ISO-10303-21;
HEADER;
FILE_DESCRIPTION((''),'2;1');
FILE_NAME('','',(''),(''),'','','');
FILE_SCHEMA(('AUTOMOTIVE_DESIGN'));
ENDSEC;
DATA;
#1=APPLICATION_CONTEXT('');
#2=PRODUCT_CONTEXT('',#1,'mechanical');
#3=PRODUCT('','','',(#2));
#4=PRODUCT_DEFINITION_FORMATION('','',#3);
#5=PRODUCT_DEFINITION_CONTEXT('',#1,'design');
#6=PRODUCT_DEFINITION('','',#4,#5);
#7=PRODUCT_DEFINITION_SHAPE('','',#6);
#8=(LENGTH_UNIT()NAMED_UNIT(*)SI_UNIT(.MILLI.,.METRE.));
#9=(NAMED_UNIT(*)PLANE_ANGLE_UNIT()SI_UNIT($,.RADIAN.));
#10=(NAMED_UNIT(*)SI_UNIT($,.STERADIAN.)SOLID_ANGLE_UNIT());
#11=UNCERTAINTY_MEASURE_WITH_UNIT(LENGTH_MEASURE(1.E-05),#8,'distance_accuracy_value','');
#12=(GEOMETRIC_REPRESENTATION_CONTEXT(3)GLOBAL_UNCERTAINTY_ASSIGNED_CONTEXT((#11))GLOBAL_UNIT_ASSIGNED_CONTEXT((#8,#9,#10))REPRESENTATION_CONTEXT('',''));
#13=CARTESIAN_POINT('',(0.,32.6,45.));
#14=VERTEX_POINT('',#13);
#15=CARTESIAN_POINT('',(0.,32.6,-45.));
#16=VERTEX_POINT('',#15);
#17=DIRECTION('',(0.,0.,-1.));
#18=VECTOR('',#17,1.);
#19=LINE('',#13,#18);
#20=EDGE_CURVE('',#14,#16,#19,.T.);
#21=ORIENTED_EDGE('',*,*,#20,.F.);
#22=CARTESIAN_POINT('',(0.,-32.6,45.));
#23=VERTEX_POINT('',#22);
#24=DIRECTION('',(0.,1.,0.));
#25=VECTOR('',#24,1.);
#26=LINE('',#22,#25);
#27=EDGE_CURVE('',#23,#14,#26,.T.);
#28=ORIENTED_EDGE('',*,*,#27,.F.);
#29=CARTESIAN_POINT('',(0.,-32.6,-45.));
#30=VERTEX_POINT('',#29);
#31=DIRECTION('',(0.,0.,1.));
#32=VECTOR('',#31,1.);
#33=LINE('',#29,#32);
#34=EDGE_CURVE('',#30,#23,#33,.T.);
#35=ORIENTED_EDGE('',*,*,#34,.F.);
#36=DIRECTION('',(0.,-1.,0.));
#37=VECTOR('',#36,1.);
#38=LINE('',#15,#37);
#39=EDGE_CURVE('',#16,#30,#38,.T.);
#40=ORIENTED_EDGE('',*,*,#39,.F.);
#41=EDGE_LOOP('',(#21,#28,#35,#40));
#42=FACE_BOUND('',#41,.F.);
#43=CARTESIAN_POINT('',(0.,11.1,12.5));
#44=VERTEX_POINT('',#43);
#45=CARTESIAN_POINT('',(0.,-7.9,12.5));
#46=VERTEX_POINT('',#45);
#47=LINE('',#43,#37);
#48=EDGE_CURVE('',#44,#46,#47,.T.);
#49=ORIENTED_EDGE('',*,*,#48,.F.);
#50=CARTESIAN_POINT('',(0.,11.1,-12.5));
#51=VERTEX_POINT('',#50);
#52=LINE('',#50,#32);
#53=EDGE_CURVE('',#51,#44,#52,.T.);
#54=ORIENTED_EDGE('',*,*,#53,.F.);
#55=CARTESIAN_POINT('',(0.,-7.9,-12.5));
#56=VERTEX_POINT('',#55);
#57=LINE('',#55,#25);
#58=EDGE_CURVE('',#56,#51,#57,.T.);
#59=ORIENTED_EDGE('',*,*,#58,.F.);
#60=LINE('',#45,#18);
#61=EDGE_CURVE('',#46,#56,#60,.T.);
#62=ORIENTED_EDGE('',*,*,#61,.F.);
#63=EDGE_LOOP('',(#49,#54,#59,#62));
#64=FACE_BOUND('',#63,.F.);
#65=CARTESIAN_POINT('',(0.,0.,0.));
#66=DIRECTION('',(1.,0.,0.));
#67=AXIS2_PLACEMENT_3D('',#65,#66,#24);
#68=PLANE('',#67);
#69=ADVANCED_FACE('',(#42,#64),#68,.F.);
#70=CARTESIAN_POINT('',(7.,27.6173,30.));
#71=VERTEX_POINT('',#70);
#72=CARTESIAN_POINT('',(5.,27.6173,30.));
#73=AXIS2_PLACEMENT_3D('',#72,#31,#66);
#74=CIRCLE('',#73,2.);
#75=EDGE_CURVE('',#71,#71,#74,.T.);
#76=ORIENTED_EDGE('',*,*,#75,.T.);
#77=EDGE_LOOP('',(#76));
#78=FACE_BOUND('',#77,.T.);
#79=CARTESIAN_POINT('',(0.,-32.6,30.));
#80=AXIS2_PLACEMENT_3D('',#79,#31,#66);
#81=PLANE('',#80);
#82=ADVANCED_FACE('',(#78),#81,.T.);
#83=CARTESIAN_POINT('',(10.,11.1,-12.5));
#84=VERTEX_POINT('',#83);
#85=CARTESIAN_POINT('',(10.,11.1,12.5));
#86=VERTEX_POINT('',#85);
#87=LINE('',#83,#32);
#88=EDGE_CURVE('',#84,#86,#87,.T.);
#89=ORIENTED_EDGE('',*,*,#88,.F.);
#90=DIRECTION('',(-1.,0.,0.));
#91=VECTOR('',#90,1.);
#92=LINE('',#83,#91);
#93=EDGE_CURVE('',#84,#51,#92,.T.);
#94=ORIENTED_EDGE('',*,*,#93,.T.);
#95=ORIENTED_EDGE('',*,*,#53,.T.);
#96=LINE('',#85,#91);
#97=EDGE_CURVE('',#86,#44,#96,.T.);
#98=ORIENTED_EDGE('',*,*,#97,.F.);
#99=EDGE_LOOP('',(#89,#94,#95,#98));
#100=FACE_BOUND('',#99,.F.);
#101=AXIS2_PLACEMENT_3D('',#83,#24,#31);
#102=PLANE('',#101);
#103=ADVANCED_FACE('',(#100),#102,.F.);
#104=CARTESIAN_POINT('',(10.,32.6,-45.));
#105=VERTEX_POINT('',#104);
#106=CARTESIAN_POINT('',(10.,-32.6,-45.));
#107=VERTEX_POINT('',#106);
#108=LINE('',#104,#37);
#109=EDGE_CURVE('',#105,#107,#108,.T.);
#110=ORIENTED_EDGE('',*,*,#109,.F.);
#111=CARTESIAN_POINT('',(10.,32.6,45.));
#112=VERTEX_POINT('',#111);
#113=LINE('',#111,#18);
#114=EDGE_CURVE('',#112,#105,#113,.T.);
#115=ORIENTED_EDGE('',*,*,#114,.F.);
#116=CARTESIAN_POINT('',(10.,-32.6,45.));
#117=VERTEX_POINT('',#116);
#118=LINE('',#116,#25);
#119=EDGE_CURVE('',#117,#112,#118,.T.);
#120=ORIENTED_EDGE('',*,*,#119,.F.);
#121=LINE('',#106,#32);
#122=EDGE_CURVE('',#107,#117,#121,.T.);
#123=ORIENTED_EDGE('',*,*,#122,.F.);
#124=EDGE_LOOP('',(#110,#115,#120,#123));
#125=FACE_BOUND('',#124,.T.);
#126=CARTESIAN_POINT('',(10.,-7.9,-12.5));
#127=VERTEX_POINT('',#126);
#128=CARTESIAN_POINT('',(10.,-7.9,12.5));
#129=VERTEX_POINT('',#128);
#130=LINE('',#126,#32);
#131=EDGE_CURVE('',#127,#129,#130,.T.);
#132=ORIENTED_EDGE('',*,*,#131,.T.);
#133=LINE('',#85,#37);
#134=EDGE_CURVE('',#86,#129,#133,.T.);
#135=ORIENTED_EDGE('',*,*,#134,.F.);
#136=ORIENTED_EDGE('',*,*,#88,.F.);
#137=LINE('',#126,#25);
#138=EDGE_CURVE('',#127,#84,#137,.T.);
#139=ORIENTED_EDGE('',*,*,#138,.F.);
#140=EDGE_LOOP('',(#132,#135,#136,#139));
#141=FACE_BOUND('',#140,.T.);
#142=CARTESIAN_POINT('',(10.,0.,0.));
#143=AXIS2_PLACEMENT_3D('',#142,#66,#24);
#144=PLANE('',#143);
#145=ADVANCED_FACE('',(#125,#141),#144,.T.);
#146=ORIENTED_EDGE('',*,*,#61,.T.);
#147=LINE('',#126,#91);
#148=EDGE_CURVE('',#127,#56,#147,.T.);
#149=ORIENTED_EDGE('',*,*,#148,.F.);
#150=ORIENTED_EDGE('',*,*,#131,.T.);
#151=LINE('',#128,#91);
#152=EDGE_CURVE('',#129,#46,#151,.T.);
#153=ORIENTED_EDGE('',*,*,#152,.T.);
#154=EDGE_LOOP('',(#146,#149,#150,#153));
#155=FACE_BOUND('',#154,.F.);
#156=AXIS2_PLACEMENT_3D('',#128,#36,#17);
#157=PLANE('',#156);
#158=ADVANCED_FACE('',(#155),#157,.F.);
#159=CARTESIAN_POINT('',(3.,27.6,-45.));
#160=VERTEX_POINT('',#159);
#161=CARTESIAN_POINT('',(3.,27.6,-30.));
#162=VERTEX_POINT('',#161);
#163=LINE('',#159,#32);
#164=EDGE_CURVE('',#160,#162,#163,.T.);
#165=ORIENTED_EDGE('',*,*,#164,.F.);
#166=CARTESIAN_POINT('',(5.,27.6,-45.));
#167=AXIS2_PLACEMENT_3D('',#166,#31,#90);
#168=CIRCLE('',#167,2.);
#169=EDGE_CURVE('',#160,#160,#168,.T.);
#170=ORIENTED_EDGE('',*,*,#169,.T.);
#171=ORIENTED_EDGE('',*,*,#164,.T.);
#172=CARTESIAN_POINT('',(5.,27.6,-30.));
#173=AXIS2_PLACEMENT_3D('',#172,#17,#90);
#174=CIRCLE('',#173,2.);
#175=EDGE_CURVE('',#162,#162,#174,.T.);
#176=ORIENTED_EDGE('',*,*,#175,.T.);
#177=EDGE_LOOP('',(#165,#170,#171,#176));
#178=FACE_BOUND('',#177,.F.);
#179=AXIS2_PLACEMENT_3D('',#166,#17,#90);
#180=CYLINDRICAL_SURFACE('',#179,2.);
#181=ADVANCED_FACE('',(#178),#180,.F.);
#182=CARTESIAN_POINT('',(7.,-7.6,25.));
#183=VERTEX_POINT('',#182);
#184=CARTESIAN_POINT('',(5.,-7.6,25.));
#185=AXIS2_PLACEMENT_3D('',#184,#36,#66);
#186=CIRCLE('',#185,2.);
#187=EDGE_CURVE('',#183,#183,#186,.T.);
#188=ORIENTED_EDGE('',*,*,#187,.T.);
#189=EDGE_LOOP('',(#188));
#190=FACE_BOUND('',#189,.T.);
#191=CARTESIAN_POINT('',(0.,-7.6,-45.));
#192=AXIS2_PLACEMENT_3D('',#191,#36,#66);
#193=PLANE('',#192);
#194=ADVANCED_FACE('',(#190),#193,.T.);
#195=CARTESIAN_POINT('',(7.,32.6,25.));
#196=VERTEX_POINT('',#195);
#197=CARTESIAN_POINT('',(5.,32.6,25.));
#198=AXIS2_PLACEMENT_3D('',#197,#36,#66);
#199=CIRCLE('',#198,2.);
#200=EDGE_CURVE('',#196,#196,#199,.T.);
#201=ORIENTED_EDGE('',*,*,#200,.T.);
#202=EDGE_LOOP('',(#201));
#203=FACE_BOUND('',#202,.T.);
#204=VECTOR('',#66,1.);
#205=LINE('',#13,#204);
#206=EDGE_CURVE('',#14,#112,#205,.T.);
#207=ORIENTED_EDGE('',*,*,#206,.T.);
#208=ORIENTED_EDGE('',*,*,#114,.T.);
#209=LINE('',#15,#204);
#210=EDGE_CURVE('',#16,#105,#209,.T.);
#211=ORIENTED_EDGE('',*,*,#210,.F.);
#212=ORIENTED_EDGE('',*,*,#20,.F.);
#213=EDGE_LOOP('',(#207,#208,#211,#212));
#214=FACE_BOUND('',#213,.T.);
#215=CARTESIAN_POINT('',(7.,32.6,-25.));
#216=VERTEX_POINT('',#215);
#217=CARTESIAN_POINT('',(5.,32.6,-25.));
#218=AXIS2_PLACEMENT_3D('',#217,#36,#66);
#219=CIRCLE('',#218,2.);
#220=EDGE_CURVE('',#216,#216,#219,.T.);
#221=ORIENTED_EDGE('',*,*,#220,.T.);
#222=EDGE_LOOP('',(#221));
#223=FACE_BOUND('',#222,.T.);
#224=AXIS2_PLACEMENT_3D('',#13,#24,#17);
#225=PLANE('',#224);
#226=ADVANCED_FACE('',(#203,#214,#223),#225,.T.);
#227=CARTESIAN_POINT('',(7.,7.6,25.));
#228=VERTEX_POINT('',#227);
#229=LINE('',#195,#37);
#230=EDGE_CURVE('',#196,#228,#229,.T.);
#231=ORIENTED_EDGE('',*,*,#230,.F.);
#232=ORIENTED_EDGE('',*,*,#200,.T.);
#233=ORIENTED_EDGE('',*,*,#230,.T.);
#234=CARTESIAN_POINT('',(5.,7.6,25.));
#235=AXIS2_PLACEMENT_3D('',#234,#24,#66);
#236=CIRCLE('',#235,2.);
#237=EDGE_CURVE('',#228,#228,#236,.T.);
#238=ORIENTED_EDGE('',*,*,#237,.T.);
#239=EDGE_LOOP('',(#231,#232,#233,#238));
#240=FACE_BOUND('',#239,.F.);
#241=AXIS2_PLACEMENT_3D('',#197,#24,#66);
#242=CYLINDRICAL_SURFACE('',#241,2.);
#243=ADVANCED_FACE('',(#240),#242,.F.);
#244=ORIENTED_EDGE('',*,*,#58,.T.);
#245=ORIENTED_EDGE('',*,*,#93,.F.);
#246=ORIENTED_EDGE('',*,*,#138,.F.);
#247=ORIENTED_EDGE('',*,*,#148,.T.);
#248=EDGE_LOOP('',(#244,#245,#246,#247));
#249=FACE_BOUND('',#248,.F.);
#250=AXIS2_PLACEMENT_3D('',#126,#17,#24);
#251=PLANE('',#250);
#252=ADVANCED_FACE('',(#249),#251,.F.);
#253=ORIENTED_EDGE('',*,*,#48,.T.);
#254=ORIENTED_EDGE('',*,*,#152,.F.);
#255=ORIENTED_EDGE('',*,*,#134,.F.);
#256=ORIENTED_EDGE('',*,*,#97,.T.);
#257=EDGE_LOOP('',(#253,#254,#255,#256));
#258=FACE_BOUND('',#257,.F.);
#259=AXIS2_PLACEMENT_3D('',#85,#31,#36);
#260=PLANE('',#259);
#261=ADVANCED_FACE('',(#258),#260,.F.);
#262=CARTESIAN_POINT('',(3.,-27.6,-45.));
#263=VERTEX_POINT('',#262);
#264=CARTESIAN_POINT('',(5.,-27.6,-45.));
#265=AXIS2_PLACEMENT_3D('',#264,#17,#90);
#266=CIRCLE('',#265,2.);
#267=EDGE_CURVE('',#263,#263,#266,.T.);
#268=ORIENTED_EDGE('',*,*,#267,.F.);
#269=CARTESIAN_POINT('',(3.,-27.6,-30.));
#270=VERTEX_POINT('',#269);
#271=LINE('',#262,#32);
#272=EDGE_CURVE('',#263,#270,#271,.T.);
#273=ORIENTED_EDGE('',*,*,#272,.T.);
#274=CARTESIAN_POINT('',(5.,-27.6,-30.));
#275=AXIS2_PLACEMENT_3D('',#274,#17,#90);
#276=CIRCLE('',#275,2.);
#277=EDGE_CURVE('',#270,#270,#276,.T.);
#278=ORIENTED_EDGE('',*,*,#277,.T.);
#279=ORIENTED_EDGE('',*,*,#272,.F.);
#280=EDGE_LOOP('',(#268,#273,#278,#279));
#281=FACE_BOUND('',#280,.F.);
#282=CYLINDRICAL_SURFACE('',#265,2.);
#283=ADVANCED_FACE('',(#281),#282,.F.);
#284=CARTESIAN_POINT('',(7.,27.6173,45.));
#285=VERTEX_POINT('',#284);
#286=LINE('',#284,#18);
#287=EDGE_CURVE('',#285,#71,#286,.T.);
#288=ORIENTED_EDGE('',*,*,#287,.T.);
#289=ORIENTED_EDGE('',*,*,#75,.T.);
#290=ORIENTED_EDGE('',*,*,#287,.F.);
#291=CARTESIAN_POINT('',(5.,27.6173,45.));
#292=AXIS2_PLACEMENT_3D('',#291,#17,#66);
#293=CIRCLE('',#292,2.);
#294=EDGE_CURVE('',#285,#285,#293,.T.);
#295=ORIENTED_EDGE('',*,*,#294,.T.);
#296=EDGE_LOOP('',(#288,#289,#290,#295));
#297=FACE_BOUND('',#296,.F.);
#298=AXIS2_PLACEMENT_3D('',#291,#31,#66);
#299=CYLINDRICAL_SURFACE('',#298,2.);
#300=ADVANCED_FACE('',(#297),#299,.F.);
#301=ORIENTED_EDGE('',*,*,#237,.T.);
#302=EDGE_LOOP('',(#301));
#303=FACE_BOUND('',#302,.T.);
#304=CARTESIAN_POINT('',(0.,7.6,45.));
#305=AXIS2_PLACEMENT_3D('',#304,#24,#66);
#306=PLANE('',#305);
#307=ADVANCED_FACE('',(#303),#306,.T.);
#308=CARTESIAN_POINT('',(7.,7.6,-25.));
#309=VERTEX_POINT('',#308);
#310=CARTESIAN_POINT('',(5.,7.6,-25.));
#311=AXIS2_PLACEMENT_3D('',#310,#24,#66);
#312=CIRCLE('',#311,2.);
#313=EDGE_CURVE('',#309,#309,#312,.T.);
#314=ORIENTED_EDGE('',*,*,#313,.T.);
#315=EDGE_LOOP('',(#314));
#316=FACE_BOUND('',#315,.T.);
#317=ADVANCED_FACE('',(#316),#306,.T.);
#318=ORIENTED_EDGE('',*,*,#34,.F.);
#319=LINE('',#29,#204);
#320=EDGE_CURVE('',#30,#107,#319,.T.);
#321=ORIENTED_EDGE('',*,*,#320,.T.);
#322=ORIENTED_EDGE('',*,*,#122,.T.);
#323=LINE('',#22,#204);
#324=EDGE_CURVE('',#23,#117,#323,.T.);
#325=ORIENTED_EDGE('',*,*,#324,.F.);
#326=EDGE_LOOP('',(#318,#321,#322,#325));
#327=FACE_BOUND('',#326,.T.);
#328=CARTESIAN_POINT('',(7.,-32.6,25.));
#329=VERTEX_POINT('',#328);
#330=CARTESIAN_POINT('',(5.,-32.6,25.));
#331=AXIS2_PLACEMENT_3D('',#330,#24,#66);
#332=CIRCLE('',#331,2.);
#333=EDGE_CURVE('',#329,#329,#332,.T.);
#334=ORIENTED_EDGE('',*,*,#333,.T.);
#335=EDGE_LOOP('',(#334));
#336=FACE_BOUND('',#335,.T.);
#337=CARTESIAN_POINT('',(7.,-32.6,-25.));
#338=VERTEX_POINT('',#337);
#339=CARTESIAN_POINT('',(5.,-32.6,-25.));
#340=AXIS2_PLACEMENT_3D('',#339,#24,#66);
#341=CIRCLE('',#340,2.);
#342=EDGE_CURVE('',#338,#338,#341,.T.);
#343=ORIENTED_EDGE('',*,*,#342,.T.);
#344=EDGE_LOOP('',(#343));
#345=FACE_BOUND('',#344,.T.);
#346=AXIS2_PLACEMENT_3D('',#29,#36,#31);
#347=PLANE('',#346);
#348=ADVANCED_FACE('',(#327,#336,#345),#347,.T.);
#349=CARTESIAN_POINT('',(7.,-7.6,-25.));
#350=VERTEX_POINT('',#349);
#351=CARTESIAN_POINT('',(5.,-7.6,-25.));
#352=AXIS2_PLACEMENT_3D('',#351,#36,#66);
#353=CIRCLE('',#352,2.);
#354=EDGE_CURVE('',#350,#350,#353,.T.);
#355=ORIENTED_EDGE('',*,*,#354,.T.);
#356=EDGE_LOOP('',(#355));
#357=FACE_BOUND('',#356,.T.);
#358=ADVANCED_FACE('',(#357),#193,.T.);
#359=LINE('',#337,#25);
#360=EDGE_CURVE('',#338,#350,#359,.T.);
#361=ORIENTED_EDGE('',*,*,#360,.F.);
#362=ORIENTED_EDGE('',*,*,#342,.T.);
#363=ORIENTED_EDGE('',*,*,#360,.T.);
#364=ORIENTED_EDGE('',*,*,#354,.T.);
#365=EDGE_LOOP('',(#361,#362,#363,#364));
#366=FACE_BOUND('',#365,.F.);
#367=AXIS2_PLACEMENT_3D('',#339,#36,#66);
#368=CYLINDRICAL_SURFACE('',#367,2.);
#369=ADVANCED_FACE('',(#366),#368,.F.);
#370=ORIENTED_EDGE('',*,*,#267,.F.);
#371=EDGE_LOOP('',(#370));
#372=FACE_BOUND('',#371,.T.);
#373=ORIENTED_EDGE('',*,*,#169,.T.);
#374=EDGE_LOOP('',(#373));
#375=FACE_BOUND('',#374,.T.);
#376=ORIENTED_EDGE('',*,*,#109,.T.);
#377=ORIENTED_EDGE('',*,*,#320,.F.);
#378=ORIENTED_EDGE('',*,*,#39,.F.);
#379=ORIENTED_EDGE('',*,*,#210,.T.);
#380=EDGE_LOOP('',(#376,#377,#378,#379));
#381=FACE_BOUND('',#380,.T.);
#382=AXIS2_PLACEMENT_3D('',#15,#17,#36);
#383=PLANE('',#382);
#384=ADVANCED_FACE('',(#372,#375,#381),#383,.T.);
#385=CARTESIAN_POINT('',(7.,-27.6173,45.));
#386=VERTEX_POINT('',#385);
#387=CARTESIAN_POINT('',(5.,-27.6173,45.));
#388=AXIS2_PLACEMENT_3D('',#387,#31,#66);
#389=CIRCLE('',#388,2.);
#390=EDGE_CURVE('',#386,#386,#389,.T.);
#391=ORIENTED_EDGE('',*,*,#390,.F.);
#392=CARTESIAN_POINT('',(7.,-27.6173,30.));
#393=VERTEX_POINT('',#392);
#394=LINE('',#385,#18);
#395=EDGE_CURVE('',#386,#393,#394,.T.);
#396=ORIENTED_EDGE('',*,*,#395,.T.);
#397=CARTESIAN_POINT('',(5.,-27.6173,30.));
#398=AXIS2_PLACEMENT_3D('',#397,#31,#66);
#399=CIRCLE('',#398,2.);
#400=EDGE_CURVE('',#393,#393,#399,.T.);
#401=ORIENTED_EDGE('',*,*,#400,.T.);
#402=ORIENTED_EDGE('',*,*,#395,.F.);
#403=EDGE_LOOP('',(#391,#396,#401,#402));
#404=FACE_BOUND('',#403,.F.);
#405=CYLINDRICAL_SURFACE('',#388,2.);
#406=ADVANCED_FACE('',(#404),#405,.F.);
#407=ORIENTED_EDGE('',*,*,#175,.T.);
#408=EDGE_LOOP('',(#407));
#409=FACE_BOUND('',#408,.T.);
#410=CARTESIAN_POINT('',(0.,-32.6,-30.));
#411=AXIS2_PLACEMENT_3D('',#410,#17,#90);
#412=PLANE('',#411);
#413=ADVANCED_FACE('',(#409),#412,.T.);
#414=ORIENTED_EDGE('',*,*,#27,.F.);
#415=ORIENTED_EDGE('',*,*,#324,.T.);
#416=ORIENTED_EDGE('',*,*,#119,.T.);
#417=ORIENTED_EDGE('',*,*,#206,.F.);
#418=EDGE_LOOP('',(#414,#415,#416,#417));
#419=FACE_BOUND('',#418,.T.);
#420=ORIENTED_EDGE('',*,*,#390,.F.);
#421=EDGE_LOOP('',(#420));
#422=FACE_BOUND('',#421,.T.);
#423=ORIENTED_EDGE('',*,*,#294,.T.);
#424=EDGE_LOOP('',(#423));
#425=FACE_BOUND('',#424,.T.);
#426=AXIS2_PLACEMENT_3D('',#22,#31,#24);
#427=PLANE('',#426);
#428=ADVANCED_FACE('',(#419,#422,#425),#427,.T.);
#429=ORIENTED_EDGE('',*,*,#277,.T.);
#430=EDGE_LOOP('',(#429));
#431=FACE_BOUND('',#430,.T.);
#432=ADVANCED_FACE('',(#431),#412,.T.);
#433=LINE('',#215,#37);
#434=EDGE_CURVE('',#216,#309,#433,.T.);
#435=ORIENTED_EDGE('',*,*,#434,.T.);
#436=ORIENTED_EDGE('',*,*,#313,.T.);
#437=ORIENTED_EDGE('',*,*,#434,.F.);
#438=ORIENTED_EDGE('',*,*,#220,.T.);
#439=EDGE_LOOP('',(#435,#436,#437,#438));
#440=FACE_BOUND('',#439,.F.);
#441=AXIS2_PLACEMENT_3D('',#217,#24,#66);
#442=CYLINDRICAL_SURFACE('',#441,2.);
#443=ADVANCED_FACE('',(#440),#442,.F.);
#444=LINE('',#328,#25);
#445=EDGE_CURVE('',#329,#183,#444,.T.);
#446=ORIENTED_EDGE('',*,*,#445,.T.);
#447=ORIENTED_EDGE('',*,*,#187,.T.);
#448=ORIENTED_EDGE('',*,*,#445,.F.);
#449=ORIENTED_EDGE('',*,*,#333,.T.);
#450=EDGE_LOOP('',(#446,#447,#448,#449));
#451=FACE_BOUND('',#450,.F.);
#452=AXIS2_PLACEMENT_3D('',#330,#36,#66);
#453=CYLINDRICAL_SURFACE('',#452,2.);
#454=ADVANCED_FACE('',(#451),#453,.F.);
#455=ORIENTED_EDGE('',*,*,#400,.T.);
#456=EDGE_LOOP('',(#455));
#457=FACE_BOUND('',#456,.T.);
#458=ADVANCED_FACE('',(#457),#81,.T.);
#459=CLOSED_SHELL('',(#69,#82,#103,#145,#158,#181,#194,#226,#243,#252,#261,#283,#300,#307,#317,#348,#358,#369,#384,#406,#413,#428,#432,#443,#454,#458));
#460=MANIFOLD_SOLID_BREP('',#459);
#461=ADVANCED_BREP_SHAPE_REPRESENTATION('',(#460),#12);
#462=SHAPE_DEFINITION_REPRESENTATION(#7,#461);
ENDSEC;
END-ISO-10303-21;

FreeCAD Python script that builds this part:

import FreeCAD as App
import Part
import Sketcher

V = App.Vector


def add_polygon(sketch, points):
    """Adds a closed chain of lines whose ends are joined by coincident constraints."""
    first, n = sketch.GeometryCount, len(points)
    for a, b in zip(points, points[1:] + points[:1]):
        sketch.addGeometry(Part.LineSegment(App.Vector(*a, 0), App.Vector(*b, 0)), False)
    for i in range(n):
        sketch.addConstraint(Sketcher.Constraint("Coincident", first + i, 2, first + (i + 1) % n, 1))

doc = App.newDocument("Part")
body = doc.addObject("PartDesign::Body", "Body")

sketch1 = doc.addObject("Sketcher::SketchObject", "Sketch")
body.addObject(sketch1)
sketch1.AttachmentSupport = (doc.YZ_Plane, [""])
sketch1.MapMode = "FlatFace"
add_polygon(sketch1, [(33, 45), (-33, 45), (-33, -45), (33, -45)])
sketch1.addConstraint([
    Sketcher.Constraint("Horizontal", 0),
    Sketcher.Constraint("Vertical", 1),
    Sketcher.Constraint("Horizontal", 2),
    Sketcher.Constraint("Vertical", 3),
    Sketcher.Constraint("Symmetric", 0, 2, 2, 2, -1, 1),
    Sketcher.Constraint("DistanceY", 1, 2, 1, 1, 90.0),
    Sketcher.Constraint("DistanceX", 0, 2, 0, 1, 65.2),
])
pad1 = doc.addObject("PartDesign::Pad", "Pad")
body.addObject(pad1)
pad1.Profile = sketch1
pad1.Length = 10

sketch2 = doc.addObject("Sketcher::SketchObject", "Sketch001")
body.addObject(sketch2)
sketch2.AttachmentSupport = (doc.XZ_Plane, [""])
sketch2.MapMode = "FlatFace"
sketch2.AttachmentOffset = App.Placement(V(0, 0, -32.6), App.Rotation())
sketch2.addGeometry([
    Part.Circle(V(5, 25, 0), V(0, 0, 1), 2),
    Part.Circle(V(5, -25, 0), V(0, 0, 1), 2),
], False)
sketch2.addConstraint([
    Sketcher.Constraint("Equal", 0, 1),
    Sketcher.Constraint("Symmetric", 0, 3, 1, 3, -1),
    Sketcher.Constraint("Diameter", 0, 4.0),
    Sketcher.Constraint("DistanceX", -1, 1, 0, 3, 5.0),
    Sketcher.Constraint("DistanceY", -1, 1, 0, 3, 25.0),
])
pocket1 = doc.addObject("PartDesign::Pocket", "Pocket")
body.addObject(pocket1)
pocket1.Profile = sketch2
pocket1.Length = 25
pocket1.Reversed = True

sketch3 = doc.addObject("Sketcher::SketchObject", "Sketch002")
body.addObject(sketch3)
sketch3.AttachmentSupport = (doc.XZ_Plane, [""])
sketch3.MapMode = "FlatFace"
sketch3.AttachmentOffset = App.Placement(V(0, 0, 32.6), App.Rotation())
sketch3.addGeometry([
    Part.Circle(V(5, 25, 0), V(0, 0, 1), 2),
    Part.Circle(V(5, -25, 0), V(0, 0, 1), 2),
], False)
sketch3.addConstraint([
    Sketcher.Constraint("Equal", 0, 1),
    Sketcher.Constraint("Symmetric", 0, 3, 1, 3, -1),
    Sketcher.Constraint("Diameter", 0, 4.0),
    Sketcher.Constraint("DistanceX", -1, 1, 0, 3, 5.0),
    Sketcher.Constraint("DistanceY", -1, 1, 0, 3, 25.0),
])
pocket2 = doc.addObject("PartDesign::Pocket", "Pocket001")
body.addObject(pocket2)
pocket2.Profile = sketch3
pocket2.Length = 25

sketch4 = doc.addObject("Sketcher::SketchObject", "Sketch003")
body.addObject(sketch4)
sketch4.AttachmentSupport = (doc.YZ_Plane, [""])
sketch4.MapMode = "FlatFace"
sketch4.AttachmentOffset = App.Placement(V(0, 0, 10), App.Rotation())
add_polygon(sketch4, [(11, 12), (-8, 12), (-8, -12), (11, -12)])
sketch4.addConstraint([
    Sketcher.Constraint("Horizontal", 0),
    Sketcher.Constraint("Vertical", 1),
    Sketcher.Constraint("Horizontal", 2),
    Sketcher.Constraint("Vertical", 3),
    Sketcher.Constraint("DistanceX", 0, 2, 0, 1, 19.0),
    Sketcher.Constraint("DistanceY", 1, 2, 1, 1, 25.0),
    Sketcher.Constraint("DistanceX", 0, 2, -1, 1, 7.9),
    Sketcher.Constraint("DistanceY", -1, 1, 0, 2, 12.5),
])
pocket3 = doc.addObject("PartDesign::Pocket", "Pocket002")
body.addObject(pocket3)
pocket3.Profile = sketch4
pocket3.Length = 10

sketch5 = doc.addObject("Sketcher::SketchObject", "Sketch004")
body.addObject(sketch5)
sketch5.AttachmentSupport = (doc.XY_Plane, [""])
sketch5.MapMode = "FlatFace"
sketch5.AttachmentOffset = App.Placement(V(0, 0, 45), App.Rotation())
sketch5.addGeometry([
    Part.Circle(V(5, 27.6, 0), V(0, 0, 1), 2),
    Part.Circle(V(5, -27.6, 0), V(0, 0, 1), 2),
], False)
sketch5.addConstraint([
    Sketcher.Constraint("Equal", 0, 1),
    Sketcher.Constraint("Symmetric", 0, 3, 1, 3, -1),
    Sketcher.Constraint("Diameter", 0, 4.0),
    Sketcher.Constraint("DistanceX", -1, 1, 0, 3, 5.0),
    Sketcher.Constraint("DistanceY", -1, 1, 0, 3, 27.6173),
])
pocket4 = doc.addObject("PartDesign::Pocket", "Pocket003")
body.addObject(pocket4)
pocket4.Profile = sketch5
pocket4.Length = 15

sketch6 = doc.addObject("Sketcher::SketchObject", "Sketch005")
body.addObject(sketch6)
sketch6.AttachmentSupport = (doc.XY_Plane, [""])
sketch6.MapMode = "FlatFace"
sketch6.AttachmentOffset = App.Placement(V(0, 0, -45), App.Rotation())
sketch6.addGeometry([
    Part.Circle(V(5, 27.6, 0), V(0, 0, 1), 2),
    Part.Circle(V(5, -27.6, 0), V(0, 0, 1), 2),
], False)
sketch6.addConstraint([
    Sketcher.Constraint("Equal", 0, 1),
    Sketcher.Constraint("Symmetric", 0, 3, 1, 3, -1),
    Sketcher.Constraint("Diameter", 0, 4.0),
    Sketcher.Constraint("DistanceX", -1, 1, 0, 3, 5.0),
    Sketcher.Constraint("DistanceY", -1, 1, 0, 3, 27.6),
])
pocket5 = doc.addObject("PartDesign::Pocket", "Pocket004")
body.addObject(pocket5)
pocket5.Profile = sketch6
pocket5.Length = 15
pocket5.Reversed = True

doc.recompute()
